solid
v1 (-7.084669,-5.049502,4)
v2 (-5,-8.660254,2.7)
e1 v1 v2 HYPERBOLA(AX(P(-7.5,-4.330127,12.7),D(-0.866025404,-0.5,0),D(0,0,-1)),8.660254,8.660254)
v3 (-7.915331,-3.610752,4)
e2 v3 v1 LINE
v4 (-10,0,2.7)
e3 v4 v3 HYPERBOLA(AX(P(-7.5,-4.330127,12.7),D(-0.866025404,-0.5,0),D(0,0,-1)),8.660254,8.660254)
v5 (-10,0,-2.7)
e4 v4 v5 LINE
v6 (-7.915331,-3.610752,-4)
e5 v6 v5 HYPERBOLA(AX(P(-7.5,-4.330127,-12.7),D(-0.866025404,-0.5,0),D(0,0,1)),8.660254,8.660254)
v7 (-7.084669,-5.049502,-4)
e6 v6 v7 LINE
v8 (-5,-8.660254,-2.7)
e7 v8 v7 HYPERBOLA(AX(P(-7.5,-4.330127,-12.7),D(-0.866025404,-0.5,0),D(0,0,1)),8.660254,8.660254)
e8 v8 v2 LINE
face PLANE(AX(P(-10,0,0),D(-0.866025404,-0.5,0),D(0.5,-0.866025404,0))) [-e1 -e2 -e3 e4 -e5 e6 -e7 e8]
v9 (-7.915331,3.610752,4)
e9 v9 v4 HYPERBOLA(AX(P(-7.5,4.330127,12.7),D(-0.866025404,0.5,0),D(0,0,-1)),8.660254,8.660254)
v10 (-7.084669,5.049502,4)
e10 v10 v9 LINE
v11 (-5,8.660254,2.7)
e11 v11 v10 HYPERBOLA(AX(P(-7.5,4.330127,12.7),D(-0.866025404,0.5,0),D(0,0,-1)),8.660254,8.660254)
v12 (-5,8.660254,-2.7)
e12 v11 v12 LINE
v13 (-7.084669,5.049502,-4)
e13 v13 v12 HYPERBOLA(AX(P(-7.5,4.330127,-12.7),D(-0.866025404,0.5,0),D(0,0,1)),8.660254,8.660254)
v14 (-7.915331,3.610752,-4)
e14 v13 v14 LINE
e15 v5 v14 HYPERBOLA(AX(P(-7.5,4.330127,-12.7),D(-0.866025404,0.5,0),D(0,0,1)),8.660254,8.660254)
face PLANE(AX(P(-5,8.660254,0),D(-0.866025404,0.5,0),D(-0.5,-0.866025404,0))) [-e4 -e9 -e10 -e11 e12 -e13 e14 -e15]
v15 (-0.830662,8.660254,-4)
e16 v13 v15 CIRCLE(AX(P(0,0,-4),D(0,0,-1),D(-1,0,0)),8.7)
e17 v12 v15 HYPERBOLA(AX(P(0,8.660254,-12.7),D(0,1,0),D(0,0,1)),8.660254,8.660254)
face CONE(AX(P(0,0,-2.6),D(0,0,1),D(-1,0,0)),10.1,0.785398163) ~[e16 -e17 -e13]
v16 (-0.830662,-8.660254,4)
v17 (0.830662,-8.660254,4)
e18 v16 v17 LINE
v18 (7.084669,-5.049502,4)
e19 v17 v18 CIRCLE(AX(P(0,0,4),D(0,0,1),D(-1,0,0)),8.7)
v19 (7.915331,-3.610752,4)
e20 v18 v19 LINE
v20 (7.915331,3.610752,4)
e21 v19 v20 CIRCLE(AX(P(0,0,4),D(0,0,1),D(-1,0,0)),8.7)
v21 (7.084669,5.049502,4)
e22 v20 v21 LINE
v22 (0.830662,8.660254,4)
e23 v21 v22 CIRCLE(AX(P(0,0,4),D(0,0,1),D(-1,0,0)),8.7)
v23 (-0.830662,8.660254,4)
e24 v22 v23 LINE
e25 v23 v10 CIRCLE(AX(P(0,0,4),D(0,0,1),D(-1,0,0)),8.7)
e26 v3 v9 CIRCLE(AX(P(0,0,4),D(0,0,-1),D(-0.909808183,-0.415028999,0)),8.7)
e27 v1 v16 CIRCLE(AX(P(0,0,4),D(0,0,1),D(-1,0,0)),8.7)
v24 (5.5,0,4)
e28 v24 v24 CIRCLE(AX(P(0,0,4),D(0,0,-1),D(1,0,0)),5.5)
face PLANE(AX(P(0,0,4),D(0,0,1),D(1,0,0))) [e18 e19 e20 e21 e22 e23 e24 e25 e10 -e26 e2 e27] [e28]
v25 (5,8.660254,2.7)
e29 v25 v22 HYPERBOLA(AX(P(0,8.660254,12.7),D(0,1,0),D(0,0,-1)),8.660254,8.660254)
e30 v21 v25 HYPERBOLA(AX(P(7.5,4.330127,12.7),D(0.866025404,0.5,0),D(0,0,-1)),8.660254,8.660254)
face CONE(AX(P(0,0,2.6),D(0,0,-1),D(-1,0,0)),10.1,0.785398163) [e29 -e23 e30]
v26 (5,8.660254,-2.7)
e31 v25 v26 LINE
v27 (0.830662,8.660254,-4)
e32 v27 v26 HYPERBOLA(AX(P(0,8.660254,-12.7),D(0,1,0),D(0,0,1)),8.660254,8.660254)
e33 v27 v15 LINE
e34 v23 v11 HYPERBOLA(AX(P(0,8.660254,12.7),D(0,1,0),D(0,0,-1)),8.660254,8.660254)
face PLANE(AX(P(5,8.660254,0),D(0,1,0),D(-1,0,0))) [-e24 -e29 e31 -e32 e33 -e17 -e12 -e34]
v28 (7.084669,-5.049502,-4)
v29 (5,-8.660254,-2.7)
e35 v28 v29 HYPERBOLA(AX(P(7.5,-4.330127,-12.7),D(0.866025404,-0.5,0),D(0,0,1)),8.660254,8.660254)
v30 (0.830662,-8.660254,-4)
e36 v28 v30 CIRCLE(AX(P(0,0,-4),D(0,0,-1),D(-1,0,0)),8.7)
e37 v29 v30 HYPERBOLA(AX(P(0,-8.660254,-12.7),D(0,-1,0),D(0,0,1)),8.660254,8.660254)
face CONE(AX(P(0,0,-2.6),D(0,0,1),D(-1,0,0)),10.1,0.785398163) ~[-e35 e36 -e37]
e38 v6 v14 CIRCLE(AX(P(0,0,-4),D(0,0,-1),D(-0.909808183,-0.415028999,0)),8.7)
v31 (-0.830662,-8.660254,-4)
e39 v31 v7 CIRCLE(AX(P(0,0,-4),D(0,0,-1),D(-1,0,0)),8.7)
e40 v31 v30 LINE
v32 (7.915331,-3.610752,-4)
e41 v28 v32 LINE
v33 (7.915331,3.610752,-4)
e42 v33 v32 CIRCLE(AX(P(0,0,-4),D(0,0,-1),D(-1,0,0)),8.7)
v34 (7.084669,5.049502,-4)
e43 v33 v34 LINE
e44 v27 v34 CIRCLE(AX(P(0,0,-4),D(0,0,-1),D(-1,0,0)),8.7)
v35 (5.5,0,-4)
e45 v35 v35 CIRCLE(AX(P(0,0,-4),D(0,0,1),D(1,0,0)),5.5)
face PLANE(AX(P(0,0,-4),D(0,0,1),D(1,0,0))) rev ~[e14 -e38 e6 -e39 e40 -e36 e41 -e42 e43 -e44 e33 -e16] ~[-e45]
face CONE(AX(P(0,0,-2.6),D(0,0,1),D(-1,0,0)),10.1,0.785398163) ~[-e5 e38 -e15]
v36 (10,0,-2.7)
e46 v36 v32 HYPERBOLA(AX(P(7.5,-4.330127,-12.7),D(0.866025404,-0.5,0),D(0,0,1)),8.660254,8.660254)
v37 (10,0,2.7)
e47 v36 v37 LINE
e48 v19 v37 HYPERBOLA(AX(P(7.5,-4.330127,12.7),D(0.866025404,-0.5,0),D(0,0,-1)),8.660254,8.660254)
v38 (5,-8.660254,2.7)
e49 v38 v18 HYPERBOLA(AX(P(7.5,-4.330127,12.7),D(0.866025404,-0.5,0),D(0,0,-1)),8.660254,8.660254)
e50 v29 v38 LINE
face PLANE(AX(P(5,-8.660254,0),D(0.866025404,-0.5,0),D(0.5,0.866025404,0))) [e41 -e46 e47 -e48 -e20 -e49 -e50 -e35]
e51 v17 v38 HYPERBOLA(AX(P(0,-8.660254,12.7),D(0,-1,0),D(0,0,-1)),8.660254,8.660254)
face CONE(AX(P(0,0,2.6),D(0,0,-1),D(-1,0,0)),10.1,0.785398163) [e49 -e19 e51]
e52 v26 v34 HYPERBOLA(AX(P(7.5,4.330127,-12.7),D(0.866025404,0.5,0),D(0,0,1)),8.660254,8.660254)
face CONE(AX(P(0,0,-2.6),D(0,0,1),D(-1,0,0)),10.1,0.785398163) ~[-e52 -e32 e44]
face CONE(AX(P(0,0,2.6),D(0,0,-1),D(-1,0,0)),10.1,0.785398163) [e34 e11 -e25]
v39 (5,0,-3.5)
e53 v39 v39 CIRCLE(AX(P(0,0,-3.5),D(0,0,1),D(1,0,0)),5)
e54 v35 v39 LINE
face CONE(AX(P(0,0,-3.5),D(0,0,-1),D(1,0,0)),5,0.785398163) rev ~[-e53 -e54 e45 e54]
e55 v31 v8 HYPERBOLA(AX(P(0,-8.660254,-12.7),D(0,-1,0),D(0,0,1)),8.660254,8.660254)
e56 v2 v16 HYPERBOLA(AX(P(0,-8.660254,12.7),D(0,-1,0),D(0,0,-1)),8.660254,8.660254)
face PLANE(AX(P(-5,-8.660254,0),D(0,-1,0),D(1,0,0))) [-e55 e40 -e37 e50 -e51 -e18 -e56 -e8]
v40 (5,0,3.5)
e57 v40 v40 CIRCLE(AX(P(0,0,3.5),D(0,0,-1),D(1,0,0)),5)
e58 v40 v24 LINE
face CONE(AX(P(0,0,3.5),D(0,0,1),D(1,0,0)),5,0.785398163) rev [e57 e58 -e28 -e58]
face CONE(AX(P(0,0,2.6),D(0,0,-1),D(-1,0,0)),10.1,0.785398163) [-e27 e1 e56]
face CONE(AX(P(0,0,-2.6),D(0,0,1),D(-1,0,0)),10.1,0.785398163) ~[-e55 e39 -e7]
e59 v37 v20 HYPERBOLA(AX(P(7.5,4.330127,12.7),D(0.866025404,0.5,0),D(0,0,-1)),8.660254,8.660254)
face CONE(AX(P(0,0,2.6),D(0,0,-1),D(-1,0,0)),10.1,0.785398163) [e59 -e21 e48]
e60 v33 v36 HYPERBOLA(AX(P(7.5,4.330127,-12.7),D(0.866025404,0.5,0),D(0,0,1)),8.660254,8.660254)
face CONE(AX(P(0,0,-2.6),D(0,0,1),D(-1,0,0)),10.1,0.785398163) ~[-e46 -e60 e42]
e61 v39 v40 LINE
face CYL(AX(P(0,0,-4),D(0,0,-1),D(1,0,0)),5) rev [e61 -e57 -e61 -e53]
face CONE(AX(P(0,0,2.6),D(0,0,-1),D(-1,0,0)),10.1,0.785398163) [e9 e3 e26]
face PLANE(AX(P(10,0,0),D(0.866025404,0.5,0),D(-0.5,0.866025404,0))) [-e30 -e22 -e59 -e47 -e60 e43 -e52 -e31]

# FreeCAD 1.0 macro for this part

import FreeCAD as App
import Part
import Sketcher
from FreeCAD import Vector
Q = App.Units.Quantity


def edges_at(feature, points):
    """Names of the edges that pass closest to the given points."""
    edges = feature.Shape.Edges
    near = lambda p: min(range(len(edges)), key=lambda i: edges[i].distToShape(Part.Vertex(*p))[0])
    return sorted({f"Edge{near(p) + 1}" for p in points})

doc = App.newDocument("Part")
body = doc.addObject("PartDesign::Body", "Body")

sketch1 = doc.addObject("Sketcher::SketchObject", "Sketch")
body.addObject(sketch1)
sketch1.AttachmentSupport = (doc.XY_Plane, [""])
sketch1.MapMode = "FlatFace"
sketch1.addGeometry(Part.LineSegment(Vector(-10, 0, 0), Vector(-5, -9, 0)), False)
sketch1.addGeometry(Part.LineSegment(Vector(-5, -9, 0), Vector(5, -9, 0)), False)
sketch1.addGeometry(Part.LineSegment(Vector(5, -9, 0), Vector(10, 0, 0)), False)
sketch1.addGeometry(Part.LineSegment(Vector(10, 0, 0), Vector(5, 9, 0)), False)
sketch1.addGeometry(Part.LineSegment(Vector(5, 9, 0), Vector(-5, 9, 0)), False)
sketch1.addGeometry(Part.LineSegment(Vector(-5, 9, 0), Vector(-10, 0, 0)), False)
sketch1.addConstraint(Sketcher.Constraint("Coincident", 0, 2, 1, 1))
sketch1.addConstraint(Sketcher.Constraint("Coincident", 1, 2, 2, 1))
sketch1.addConstraint(Sketcher.Constraint("Coincident", 2, 2, 3, 1))
sketch1.addConstraint(Sketcher.Constraint("Coincident", 3, 2, 4, 1))
sketch1.addConstraint(Sketcher.Constraint("Coincident", 4, 2, 5, 1))
sketch1.addConstraint(Sketcher.Constraint("Coincident", 5, 2, 0, 1))
sketch1.addConstraint(Sketcher.Constraint("Horizontal", 1))
sketch1.addConstraint(Sketcher.Constraint("Horizontal", 4))
sketch1.addConstraint(Sketcher.Constraint("Symmetric", 0, 2, 3, 2, -1, 1))
sketch1.addConstraint(Sketcher.Constraint("Symmetric", 2, 2, 5, 2, -1, 1))
sketch1.addConstraint(Sketcher.Constraint("PointOnObject", 2, 2, -1))
sketch1.addConstraint(Sketcher.Constraint("Parallel", 2, 5))
sketch1.addConstraint(Sketcher.Constraint("Vertical", 1, 2, 3, 2))
sketch1.addConstraint(Sketcher.Constraint("DistanceX", 1, 1, 1, 2, 10.0))
sketch1.addConstraint(Sketcher.Constraint("Angle", 0, Q("-60 deg")))
sketch1.addConstraint(Sketcher.Constraint("Distance", 0, 10.0))
pad1 = doc.addObject("PartDesign::Pad", "Pad")
body.addObject(pad1)
pad1.Profile = sketch1
pad1.Length = 8
pad1.Midplane = True

sketch2 = doc.addObject("Sketcher::SketchObject", "Sketch001")
body.addObject(sketch2)
sketch2.AttachmentSupport = (doc.XY_Plane, [""])
sketch2.MapMode = "FlatFace"
sketch2.AttachmentOffset = App.Placement(Vector(0, 0, -4), App.Rotation())
sketch2.addGeometry(Part.Circle(Vector(0, 0, 0), Vector(0, 0, 1), 5), False)
sketch2.addConstraint(Sketcher.Constraint("Coincident", 0, 3, -1, 1))
sketch2.addConstraint(Sketcher.Constraint("Diameter", 0, 10.0))
pocket1 = doc.addObject("PartDesign::Pocket", "Pocket")
body.addObject(pocket1)
pocket1.Profile = sketch2
pocket1.Type = "ThroughAll"
pocket1.Reversed = True

sketch3 = doc.addObject("Sketcher::SketchObject", "Sketch002")
body.addObject(sketch3)
sketch3.AttachmentSupport = (doc.XZ_Plane, [""])
sketch3.MapMode = "FlatFace"
sketch3.addGeometry(Part.LineSegment(Vector(-10.1, 4.1, 0), Vector(-8.6, 4.1, 0)), False)
sketch3.addGeometry(Part.LineSegment(Vector(-8.6, 4.1, 0), Vector(-10.1, 2.6, 0)), False)
sketch3.addGeometry(Part.LineSegment(Vector(-10.1, 2.6, 0), Vector(-10.1, 4.1, 0)), False)
sketch3.addConstraint(Sketcher.Constraint("Coincident", 0, 2, 1, 1))
sketch3.addConstraint(Sketcher.Constraint("Coincident", 1, 2, 2, 1))
sketch3.addConstraint(Sketcher.Constraint("Coincident", 2, 2, 0, 1))
sketch3.addConstraint(Sketcher.Constraint("Horizontal", 0))
sketch3.addConstraint(Sketcher.Constraint("Vertical", 2))
sketch3.addConstraint(Sketcher.Constraint("Equal", 0, 2))
sketch3.addConstraint(Sketcher.Constraint("DistanceX", 0, 1, 0, 2, 1.5))
sketch3.addConstraint(Sketcher.Constraint("DistanceX", 0, 2, -1, 1, 8.6))
sketch3.addConstraint(Sketcher.Constraint("DistanceY", -1, 1, 0, 2, 4.1))
groove = doc.addObject("PartDesign::Groove", "Groove")
body.addObject(groove)
groove.Profile = sketch3
groove.ReferenceAxis = (sketch3, ["V_Axis"])
groove.Angle = 360
doc.recompute()

mirrored = doc.addObject("PartDesign::Mirrored", "Mirrored")
body.addObject(mirrored)
mirrored.Originals = [groove]
mirrored.MirrorPlane = (doc.XY_Plane, [""])
body.Tip = mirrored
doc.recompute()

chamfer = doc.addObject("PartDesign::Chamfer", "Chamfer")
body.addObject(chamfer)
chamfer.Base = (mirrored, edges_at(mirrored, [(-5, 0, -4), (-5, 0, 4)]))
chamfer.Size = 0.5

doc.recompute()
